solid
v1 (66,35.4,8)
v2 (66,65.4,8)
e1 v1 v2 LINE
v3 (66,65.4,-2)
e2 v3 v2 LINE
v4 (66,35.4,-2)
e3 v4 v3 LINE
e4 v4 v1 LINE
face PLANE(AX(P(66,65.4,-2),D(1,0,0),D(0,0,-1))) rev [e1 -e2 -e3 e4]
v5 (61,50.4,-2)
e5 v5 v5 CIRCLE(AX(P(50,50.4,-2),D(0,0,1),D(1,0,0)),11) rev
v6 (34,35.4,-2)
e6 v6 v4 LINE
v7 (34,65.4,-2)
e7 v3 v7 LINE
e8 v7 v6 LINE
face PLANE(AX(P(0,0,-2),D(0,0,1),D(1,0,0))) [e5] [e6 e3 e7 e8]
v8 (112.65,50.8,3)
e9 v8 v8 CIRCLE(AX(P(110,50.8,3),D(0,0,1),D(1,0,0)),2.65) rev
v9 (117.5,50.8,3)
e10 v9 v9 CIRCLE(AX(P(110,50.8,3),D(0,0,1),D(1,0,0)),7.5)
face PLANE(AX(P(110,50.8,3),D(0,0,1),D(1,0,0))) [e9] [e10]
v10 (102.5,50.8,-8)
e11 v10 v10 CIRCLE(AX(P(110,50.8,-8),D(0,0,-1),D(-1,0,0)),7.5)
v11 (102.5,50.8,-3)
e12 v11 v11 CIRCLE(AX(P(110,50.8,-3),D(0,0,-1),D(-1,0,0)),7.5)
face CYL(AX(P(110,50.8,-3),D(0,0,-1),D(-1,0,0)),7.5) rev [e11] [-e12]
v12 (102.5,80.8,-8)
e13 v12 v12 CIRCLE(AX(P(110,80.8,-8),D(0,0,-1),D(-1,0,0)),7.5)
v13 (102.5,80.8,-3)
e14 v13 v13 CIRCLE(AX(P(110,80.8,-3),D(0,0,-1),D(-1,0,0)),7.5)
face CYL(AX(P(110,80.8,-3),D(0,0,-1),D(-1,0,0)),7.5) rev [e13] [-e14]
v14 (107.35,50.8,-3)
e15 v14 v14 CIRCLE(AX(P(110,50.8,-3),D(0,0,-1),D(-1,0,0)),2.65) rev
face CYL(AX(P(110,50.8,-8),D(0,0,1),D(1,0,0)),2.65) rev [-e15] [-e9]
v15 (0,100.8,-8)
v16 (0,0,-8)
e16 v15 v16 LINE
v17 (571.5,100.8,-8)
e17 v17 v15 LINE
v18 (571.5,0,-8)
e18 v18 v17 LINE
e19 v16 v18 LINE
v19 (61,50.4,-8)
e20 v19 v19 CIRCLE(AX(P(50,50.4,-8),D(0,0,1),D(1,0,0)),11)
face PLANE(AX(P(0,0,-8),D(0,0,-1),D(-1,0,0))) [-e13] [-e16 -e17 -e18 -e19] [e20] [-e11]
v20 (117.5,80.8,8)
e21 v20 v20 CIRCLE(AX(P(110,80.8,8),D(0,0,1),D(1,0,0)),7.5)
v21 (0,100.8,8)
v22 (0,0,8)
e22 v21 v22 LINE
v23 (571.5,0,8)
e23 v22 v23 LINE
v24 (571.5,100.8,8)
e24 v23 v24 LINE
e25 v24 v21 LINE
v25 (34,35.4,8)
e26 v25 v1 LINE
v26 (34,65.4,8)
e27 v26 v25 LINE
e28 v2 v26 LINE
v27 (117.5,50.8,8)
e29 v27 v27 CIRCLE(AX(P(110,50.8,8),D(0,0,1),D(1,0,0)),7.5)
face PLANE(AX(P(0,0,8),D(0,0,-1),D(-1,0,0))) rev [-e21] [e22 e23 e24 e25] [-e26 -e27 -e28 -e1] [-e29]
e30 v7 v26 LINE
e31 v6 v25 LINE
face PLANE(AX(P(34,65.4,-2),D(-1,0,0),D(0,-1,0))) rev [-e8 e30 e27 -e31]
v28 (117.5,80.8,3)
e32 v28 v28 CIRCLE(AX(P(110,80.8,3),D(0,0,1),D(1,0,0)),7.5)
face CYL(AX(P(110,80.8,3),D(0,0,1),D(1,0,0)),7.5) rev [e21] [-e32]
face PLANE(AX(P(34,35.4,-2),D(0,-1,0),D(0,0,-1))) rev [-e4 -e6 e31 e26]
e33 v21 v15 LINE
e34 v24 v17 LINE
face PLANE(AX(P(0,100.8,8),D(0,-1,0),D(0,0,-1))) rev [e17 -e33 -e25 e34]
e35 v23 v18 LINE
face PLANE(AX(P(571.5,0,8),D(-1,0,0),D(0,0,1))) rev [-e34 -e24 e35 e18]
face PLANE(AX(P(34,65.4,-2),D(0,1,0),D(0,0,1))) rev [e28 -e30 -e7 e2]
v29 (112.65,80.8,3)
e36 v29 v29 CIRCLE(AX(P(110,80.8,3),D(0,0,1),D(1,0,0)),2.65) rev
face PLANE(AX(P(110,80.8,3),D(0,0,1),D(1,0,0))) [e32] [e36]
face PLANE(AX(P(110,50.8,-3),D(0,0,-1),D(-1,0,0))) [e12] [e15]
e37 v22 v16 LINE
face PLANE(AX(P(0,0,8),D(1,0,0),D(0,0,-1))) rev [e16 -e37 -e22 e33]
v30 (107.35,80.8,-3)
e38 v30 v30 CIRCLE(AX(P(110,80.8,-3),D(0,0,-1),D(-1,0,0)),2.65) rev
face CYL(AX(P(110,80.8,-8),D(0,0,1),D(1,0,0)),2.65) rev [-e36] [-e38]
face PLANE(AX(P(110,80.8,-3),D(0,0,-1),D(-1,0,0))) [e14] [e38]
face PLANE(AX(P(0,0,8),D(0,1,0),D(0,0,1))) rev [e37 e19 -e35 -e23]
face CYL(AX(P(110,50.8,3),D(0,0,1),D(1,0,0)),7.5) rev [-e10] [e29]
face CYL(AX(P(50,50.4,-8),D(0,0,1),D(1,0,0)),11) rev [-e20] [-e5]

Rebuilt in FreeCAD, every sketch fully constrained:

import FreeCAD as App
import Part
import Sketcher

V = App.Vector

doc = App.newDocument("Part")
body = doc.addObject("PartDesign::Body", "Body")

# Sketch on XY plane
sketch1 = doc.addObject("Sketcher::SketchObject", "Sketch")
body.addObject(sketch1)
sketch1.AttachmentSupport = (doc.XY_Plane, [""])
sketch1.MapMode = "FlatFace"
sketch1.addGeometry([
    Part.LineSegment(V(0, 101, 0), V(0, 0, 0)),
    Part.LineSegment(V(0, 0, 0), V(572, 0, 0)),
    Part.LineSegment(V(572, 0, 0), V(572, 101, 0)),
    Part.LineSegment(V(572, 101, 0), V(0, 101, 0)),
], False)
sketch1.addConstraint([
    Sketcher.Constraint("Coincident", 0, 2, 1, 1),
    Sketcher.Constraint("Coincident", 1, 2, 2, 1),
    Sketcher.Constraint("Coincident", 2, 2, 3, 1),
    Sketcher.Constraint("Coincident", 3, 2, 0, 1),
    Sketcher.Constraint("Vertical", 0),
    Sketcher.Constraint("Horizontal", 1),
    Sketcher.Constraint("Vertical", 2),
    Sketcher.Constraint("Horizontal", 3),
    Sketcher.Constraint("Coincident", 0, 2, -1, 1),
    Sketcher.Constraint("DistanceX", 1, 1, 1, 2, 571.5),
    Sketcher.Constraint("DistanceY", 0, 2, 0, 1, 100.8),
])
pad1 = doc.addObject("PartDesign::Pad", "Pad")
body.addObject(pad1)
pad1.Profile = sketch1
pad1.Length = 16
pad1.Midplane = True

# Sketch on XY plane
sketch2 = doc.addObject("Sketcher::SketchObject", "Sketch001")
body.addObject(sketch2)
sketch2.AttachmentSupport = (doc.XY_Plane, [""])
sketch2.MapMode = "FlatFace"
sketch2.AttachmentOffset = App.Placement(V(0, 0, 8), App.Rotation())
sketch2.addGeometry([
    Part.Circle(V(50, 50.4, 0), V(0, 0, 1), 11),
    Part.Circle(V(110, 80.8, 0), V(0, 0, 1), 2.6),
    Part.Circle(V(110, 50.8, 0), V(0, 0, 1), 2.6),
], False)
sketch2.addConstraint([
    Sketcher.Constraint("Equal", 1, 2),
    Sketcher.Constraint("Vertical", 1, 3, 2, 3),
    Sketcher.Constraint("Diameter", 0, 22.0),
    Sketcher.Constraint("Diameter", 1, 5.3),
    Sketcher.Constraint("DistanceX", -1, 1, 0, 3, 50.0),
    Sketcher.Constraint("DistanceX", -1, 1, 1, 3, 110.0),
    Sketcher.Constraint("DistanceY", 2, 3, 1, 3, 30.0),
    Sketcher.Constraint("DistanceY", -1, 1, 0, 3, 50.4),
    Sketcher.Constraint("DistanceY", -1, 1, 1, 3, 80.8),
])
pocket1 = doc.addObject("PartDesign::Pocket", "Pocket")
body.addObject(pocket1)
pocket1.Profile = sketch2
pocket1.Type = "ThroughAll"
pocket1.Midplane = True

# Sketch on XY plane
sketch3 = doc.addObject("Sketcher::SketchObject", "Sketch002")
body.addObject(sketch3)
sketch3.AttachmentSupport = (doc.XY_Plane, [""])
sketch3.MapMode = "FlatFace"
sketch3.AttachmentOffset = App.Placement(V(0, 0, 8), App.Rotation())
sketch3.addGeometry([
    Part.LineSegment(V(34, 65, 0), V(34, 35, 0)),
    Part.LineSegment(V(34, 35, 0), V(66, 35, 0)),
    Part.LineSegment(V(66, 35, 0), V(66, 65, 0)),
    Part.LineSegment(V(66, 65, 0), V(34, 65, 0)),
], False)
sketch3.addConstraint([
    Sketcher.Constraint("Coincident", 0, 2, 1, 1),
    Sketcher.Constraint("Coincident", 1, 2, 2, 1),
    Sketcher.Constraint("Coincident", 2, 2, 3, 1),
    Sketcher.Constraint("Coincident", 3, 2, 0, 1),
    Sketcher.Constraint("Vertical", 0),
    Sketcher.Constraint("Horizontal", 1),
    Sketcher.Constraint("Vertical", 2),
    Sketcher.Constraint("Horizontal", 3),
    Sketcher.Constraint("DistanceX", 1, 1, 1, 2, 32.0),
    Sketcher.Constraint("DistanceY", 0, 2, 0, 1, 30.0),
    Sketcher.Constraint("DistanceX", -1, 1, 0, 2, 34.0),
    Sketcher.Constraint("DistanceY", -1, 1, 0, 2, 35.4),
])
pocket2 = doc.addObject("PartDesign::Pocket", "Pocket001")
body.addObject(pocket2)
pocket2.Profile = sketch3
pocket2.Length = 10

# Sketch on XY plane
sketch4 = doc.addObject("Sketcher::SketchObject", "Sketch003")
body.addObject(sketch4)
sketch4.AttachmentSupport = (doc.XY_Plane, [""])
sketch4.MapMode = "FlatFace"
sketch4.AttachmentOffset = App.Placement(V(0, 0, 8), App.Rotation())
sketch4.addGeometry([
    Part.Circle(V(110, 81, 0), V(0, 0, 1), 8),
    Part.Circle(V(110, 51, 0), V(0, 0, 1), 8),
], False)
sketch4.addConstraint([
    Sketcher.Constraint("Equal", 0, 1),
    Sketcher.Constraint("Vertical", 0, 3, 1, 3),
    Sketcher.Constraint("Diameter", 0, 15.0),
    Sketcher.Constraint("DistanceX", -1, 1, 0, 3, 110.0),
    Sketcher.Constraint("DistanceY", 1, 3, 0, 3, 30.0),
    Sketcher.Constraint("DistanceY", -1, 1, 0, 3, 80.8),
])
pocket3 = doc.addObject("PartDesign::Pocket", "Pocket002")
body.addObject(pocket3)
pocket3.Profile = sketch4
pocket3.Length = 5

# Sketch on XY plane
sketch5 = doc.addObject("Sketcher::SketchObject", "Sketch004")
body.addObject(sketch5)
sketch5.AttachmentSupport = (doc.XY_Plane, [""])
sketch5.MapMode = "FlatFace"
sketch5.AttachmentOffset = App.Placement(V(0, 0, -3), App.Rotation())
sketch5.addGeometry([
    Part.Circle(V(110, 81, 0), V(0, 0, 1), 8),
    Part.Circle(V(110, 51, 0), V(0, 0, 1), 8),
], False)
sketch5.addConstraint([
    Sketcher.Constraint("Equal", 0, 1),
    Sketcher.Constraint("Vertical", 0, 3, 1, 3),
    Sketcher.Constraint("Diameter", 0, 15.0),
    Sketcher.Constraint("DistanceX", -1, 1, 0, 3, 110.0),
    Sketcher.Constraint("DistanceY", 1, 3, 0, 3, 30.0),
    Sketcher.Constraint("DistanceY", -1, 1, 0, 3, 80.8),
])
pocket4 = doc.addObject("PartDesign::Pocket", "Pocket003")
body.addObject(pocket4)
pocket4.Profile = sketch5
pocket4.Length = 5

doc.recompute()
